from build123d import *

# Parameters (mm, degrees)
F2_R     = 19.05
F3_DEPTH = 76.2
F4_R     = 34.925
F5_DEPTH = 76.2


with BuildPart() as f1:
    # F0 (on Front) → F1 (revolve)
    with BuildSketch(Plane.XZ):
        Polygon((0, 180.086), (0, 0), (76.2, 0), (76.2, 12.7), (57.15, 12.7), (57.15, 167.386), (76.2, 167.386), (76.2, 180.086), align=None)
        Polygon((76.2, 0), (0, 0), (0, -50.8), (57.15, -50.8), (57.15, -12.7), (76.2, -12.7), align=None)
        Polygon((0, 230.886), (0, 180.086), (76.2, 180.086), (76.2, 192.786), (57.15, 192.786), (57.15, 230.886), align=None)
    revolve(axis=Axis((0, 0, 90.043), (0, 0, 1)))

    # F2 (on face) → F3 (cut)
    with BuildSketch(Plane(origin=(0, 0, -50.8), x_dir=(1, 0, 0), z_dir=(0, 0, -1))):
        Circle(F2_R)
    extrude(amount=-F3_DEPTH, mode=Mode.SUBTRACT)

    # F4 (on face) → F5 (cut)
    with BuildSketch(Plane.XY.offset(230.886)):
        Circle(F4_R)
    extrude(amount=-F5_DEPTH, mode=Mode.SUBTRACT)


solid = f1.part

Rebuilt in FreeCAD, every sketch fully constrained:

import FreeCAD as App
import Part
import Sketcher
from FreeCAD import Vector
Q = App.Units.Quantity


def add_polygon(sketch, points):
    """Adds a closed chain of lines whose ends are joined by coincident constraints."""
    first, n = sketch.GeometryCount, len(points)
    for a, b in zip(points, points[1:] + points[:1]):
        sketch.addGeometry(Part.LineSegment(App.Vector(*a, 0), App.Vector(*b, 0)), False)
    for i in range(n):
        sketch.addConstraint(Sketcher.Constraint("Coincident", first + i, 2, first + (i + 1) % n, 1))

doc = App.newDocument("Part")
body = doc.addObject("PartDesign::Body", "Body")

# Sketch on XZ plane
sketch1 = body.newObject("Sketcher::SketchObject", "Sketch")
sketch1.AttachmentSupport = (doc.getObject("XZ_Plane"), [""])
sketch1.MapMode = "FlatFace"
add_polygon(sketch1, [(0, -50.8), (57.15, -50.8), (57.15, -12.7), (76.2, -12.7), (76.2, 12.7), (57.15, 12.7), (57.15, 167.386), (76.2, 167.386), (76.2, 192.786), (57.15, 192.786), (57.15, 230.886), (0, 230.886)])  # lines 0-11
sketch1.addConstraint(Sketcher.Constraint("Horizontal", 0))
sketch1.addConstraint(Sketcher.Constraint("Vertical", 1))
sketch1.addConstraint(Sketcher.Constraint("Horizontal", 2))
sketch1.addConstraint(Sketcher.Constraint("Vertical", 3))
sketch1.addConstraint(Sketcher.Constraint("Horizontal", 4))
sketch1.addConstraint(Sketcher.Constraint("Vertical", 5))
sketch1.addConstraint(Sketcher.Constraint("Horizontal", 6))
sketch1.addConstraint(Sketcher.Constraint("Vertical", 7))
sketch1.addConstraint(Sketcher.Constraint("Horizontal", 8))
sketch1.addConstraint(Sketcher.Constraint("Vertical", 9))
sketch1.addConstraint(Sketcher.Constraint("Horizontal", 10))
sketch1.addConstraint(Sketcher.Constraint("Vertical", 11))
sketch1.addConstraint(Sketcher.Constraint("Symmetric", 1, 2, 4, 2, -1))
sketch1.addConstraint(Sketcher.Constraint("PointOnObject", 10, 2, -2))
sketch1.addConstraint(Sketcher.Constraint("Vertical", 3, 2, 6, 2))
sketch1.addConstraint(Sketcher.Constraint("Vertical", 5, 2, 8, 2))
sketch1.addConstraint(Sketcher.Constraint("Equal", 3, 7))
sketch1.addConstraint(Sketcher.Constraint("Equal", 1, 9))
sketch1.addConstraint(Sketcher.Constraint("DistanceY", 3, 1, 3, 2, Q("1 in")))
sketch1.addConstraint(Sketcher.Constraint("DistanceY", 1, 1, 1, 2, Q("1.5 in")))
sketch1.addConstraint(Sketcher.Constraint("DistanceX", -1, 1, 2, 2, Q("3 in")))
sketch1.addConstraint(Sketcher.Constraint("DistanceX", 0, 1, 0, 2, Q("2.25 in")))
sketch1.addConstraint(Sketcher.Constraint("DistanceY", 5, 1, 5, 2, Q("6.09 in")))
revolution = body.newObject("PartDesign::Revolution", "Revolution")
revolution.Profile = sketch1
revolution.ReferenceAxis = (sketch1, ["V_Axis"])
revolution.Angle = 360

# Sketch on XY plane
sketch2 = body.newObject("Sketcher::SketchObject", "Sketch001")
sketch2.AttachmentSupport = (doc.getObject("XY_Plane"), [""])
sketch2.MapMode = "FlatFace"
sketch2.AttachmentOffset = App.Placement(Vector(0, 0, -2 * 25.4), App.Rotation())
sketch2.addGeometry(Part.Circle(Vector(0, 0, 0), Vector(0, 0, 1), 19.05), False)
sketch2.addConstraint(Sketcher.Constraint("Coincident", 0, 3, -1, 1))
sketch2.addConstraint(Sketcher.Constraint("Diameter", 0, Q("1.5 in")))
pocket1 = body.newObject("PartDesign::Pocket", "Pocket")
pocket1.Profile = sketch2
pocket1.Length = Q("3 in")
pocket1.Reversed = True

# Sketch on XY plane
sketch3 = body.newObject("Sketcher::SketchObject", "Sketch002")
sketch3.AttachmentSupport = (doc.getObject("XY_Plane"), [""])
sketch3.MapMode = "FlatFace"
sketch3.AttachmentOffset = App.Placement(Vector(0, 0, 9.09 * 25.4), App.Rotation())
sketch3.addGeometry(Part.Circle(Vector(0, 0, 0), Vector(0, 0, 1), 34.925), False)
sketch3.addConstraint(Sketcher.Constraint("Coincident", 0, 3, -1, 1))
sketch3.addConstraint(Sketcher.Constraint("Diameter", 0, Q("2.75 in")))
pocket2 = body.newObject("PartDesign::Pocket", "Pocket001")
pocket2.Profile = sketch3
pocket2.Length = Q("3 in")

doc.recompute()
